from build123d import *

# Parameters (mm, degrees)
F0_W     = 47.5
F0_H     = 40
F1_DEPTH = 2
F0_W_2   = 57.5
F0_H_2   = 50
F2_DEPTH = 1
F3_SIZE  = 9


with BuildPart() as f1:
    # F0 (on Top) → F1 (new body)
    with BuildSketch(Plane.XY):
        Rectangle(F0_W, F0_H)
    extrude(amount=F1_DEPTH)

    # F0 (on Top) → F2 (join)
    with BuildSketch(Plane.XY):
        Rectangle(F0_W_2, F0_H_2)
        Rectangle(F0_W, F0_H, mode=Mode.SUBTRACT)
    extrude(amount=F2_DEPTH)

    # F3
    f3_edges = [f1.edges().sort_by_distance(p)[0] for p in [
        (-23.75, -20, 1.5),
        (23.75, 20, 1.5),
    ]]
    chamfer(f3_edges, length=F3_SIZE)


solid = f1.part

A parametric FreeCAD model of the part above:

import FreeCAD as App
import Part
import Sketcher
from FreeCAD import Vector
Q = App.Units.Quantity


def edges_at(feature, points):
    """Names of the edges that pass closest to the given points."""
    edges = feature.Shape.Edges
    near = lambda p: min(range(len(edges)), key=lambda i: edges[i].distToShape(Part.Vertex(*p))[0])
    return sorted({f"Edge{near(p) + 1}" for p in points})


def add_polygon(sketch, points):
    """Adds a closed chain of lines whose ends are joined by coincident constraints."""
    first, n = sketch.GeometryCount, len(points)
    for a, b in zip(points, points[1:] + points[:1]):
        sketch.addGeometry(Part.LineSegment(App.Vector(*a, 0), App.Vector(*b, 0)), False)
    for i in range(n):
        sketch.addConstraint(Sketcher.Constraint("Coincident", first + i, 2, first + (i + 1) % n, 1))

doc = App.newDocument("Part")
body = doc.addObject("PartDesign::Body", "Body")

# Sketch on XY plane
sketch1 = body.newObject("Sketcher::SketchObject", "Sketch")
sketch1.AttachmentSupport = (doc.getObject("XY_Plane"), [""])
sketch1.MapMode = "FlatFace"
add_polygon(sketch1, [(-24, 20), (-24, -20), (24, -20), (24, 20)])  # lines 0-3
sketch1.addConstraint([
    Sketcher.Constraint("Vertical", 0),
    Sketcher.Constraint("Horizontal", 1),
    Sketcher.Constraint("Vertical", 2),
    Sketcher.Constraint("Horizontal", 3),
    Sketcher.Constraint("Symmetric", 0, 2, 2, 2, -1, 1),
    Sketcher.Constraint("DistanceY", 0, 2, 0, 1, Q("40 mm")),
    Sketcher.Constraint("DistanceX", 1, 1, 1, 2, Q("47.5 mm")),
])
pad1 = body.newObject("PartDesign::Pad", "Pad")
pad1.Profile = sketch1
pad1.Length = 2

# Sketch on XY plane
sketch2 = body.newObject("Sketcher::SketchObject", "Sketch001")
sketch2.AttachmentSupport = (doc.getObject("XY_Plane"), [""])
sketch2.MapMode = "FlatFace"
add_polygon(sketch2, [(-29, 25), (-29, -25), (29, -25), (29, 25)])  # lines 0-3
add_polygon(sketch2, [(24, -20), (-24, -20), (-24, 20), (24, 20)])  # lines 4-7
sketch2.addConstraint([
    Sketcher.Constraint("Vertical", 0),
    Sketcher.Constraint("Horizontal", 1),
    Sketcher.Constraint("Vertical", 2),
    Sketcher.Constraint("Horizontal", 3),
    Sketcher.Constraint("Horizontal", 4),
    Sketcher.Constraint("Vertical", 5),
    Sketcher.Constraint("Horizontal", 6),
    Sketcher.Constraint("Vertical", 7),
    Sketcher.Constraint("Symmetric", 0, 2, 2, 2, -1, 1),
    Sketcher.Constraint("Symmetric", 4, 2, 6, 2, -1, 1),
    Sketcher.Constraint("DistanceY", 0, 2, 0, 1, Q("50 mm")),
    Sketcher.Constraint("DistanceY", 5, 1, 5, 2, Q("40 mm")),
    Sketcher.Constraint("DistanceX", 1, 1, 1, 2, Q("57.5 mm")),
    Sketcher.Constraint("DistanceX", 4, 2, 4, 1, Q("47.5 mm")),
])
pad2 = body.newObject("PartDesign::Pad", "Pad001")
pad2.Profile = sketch2
pad2.Length = 1
doc.recompute()

chamfer = body.newObject("PartDesign::Chamfer", "Chamfer")
chamfer.Base = (pad2, edges_at(pad2, [(-23.75, -20, 1.5), (23.75, 20, 1.5)]))
chamfer.Size = 9

doc.recompute()
